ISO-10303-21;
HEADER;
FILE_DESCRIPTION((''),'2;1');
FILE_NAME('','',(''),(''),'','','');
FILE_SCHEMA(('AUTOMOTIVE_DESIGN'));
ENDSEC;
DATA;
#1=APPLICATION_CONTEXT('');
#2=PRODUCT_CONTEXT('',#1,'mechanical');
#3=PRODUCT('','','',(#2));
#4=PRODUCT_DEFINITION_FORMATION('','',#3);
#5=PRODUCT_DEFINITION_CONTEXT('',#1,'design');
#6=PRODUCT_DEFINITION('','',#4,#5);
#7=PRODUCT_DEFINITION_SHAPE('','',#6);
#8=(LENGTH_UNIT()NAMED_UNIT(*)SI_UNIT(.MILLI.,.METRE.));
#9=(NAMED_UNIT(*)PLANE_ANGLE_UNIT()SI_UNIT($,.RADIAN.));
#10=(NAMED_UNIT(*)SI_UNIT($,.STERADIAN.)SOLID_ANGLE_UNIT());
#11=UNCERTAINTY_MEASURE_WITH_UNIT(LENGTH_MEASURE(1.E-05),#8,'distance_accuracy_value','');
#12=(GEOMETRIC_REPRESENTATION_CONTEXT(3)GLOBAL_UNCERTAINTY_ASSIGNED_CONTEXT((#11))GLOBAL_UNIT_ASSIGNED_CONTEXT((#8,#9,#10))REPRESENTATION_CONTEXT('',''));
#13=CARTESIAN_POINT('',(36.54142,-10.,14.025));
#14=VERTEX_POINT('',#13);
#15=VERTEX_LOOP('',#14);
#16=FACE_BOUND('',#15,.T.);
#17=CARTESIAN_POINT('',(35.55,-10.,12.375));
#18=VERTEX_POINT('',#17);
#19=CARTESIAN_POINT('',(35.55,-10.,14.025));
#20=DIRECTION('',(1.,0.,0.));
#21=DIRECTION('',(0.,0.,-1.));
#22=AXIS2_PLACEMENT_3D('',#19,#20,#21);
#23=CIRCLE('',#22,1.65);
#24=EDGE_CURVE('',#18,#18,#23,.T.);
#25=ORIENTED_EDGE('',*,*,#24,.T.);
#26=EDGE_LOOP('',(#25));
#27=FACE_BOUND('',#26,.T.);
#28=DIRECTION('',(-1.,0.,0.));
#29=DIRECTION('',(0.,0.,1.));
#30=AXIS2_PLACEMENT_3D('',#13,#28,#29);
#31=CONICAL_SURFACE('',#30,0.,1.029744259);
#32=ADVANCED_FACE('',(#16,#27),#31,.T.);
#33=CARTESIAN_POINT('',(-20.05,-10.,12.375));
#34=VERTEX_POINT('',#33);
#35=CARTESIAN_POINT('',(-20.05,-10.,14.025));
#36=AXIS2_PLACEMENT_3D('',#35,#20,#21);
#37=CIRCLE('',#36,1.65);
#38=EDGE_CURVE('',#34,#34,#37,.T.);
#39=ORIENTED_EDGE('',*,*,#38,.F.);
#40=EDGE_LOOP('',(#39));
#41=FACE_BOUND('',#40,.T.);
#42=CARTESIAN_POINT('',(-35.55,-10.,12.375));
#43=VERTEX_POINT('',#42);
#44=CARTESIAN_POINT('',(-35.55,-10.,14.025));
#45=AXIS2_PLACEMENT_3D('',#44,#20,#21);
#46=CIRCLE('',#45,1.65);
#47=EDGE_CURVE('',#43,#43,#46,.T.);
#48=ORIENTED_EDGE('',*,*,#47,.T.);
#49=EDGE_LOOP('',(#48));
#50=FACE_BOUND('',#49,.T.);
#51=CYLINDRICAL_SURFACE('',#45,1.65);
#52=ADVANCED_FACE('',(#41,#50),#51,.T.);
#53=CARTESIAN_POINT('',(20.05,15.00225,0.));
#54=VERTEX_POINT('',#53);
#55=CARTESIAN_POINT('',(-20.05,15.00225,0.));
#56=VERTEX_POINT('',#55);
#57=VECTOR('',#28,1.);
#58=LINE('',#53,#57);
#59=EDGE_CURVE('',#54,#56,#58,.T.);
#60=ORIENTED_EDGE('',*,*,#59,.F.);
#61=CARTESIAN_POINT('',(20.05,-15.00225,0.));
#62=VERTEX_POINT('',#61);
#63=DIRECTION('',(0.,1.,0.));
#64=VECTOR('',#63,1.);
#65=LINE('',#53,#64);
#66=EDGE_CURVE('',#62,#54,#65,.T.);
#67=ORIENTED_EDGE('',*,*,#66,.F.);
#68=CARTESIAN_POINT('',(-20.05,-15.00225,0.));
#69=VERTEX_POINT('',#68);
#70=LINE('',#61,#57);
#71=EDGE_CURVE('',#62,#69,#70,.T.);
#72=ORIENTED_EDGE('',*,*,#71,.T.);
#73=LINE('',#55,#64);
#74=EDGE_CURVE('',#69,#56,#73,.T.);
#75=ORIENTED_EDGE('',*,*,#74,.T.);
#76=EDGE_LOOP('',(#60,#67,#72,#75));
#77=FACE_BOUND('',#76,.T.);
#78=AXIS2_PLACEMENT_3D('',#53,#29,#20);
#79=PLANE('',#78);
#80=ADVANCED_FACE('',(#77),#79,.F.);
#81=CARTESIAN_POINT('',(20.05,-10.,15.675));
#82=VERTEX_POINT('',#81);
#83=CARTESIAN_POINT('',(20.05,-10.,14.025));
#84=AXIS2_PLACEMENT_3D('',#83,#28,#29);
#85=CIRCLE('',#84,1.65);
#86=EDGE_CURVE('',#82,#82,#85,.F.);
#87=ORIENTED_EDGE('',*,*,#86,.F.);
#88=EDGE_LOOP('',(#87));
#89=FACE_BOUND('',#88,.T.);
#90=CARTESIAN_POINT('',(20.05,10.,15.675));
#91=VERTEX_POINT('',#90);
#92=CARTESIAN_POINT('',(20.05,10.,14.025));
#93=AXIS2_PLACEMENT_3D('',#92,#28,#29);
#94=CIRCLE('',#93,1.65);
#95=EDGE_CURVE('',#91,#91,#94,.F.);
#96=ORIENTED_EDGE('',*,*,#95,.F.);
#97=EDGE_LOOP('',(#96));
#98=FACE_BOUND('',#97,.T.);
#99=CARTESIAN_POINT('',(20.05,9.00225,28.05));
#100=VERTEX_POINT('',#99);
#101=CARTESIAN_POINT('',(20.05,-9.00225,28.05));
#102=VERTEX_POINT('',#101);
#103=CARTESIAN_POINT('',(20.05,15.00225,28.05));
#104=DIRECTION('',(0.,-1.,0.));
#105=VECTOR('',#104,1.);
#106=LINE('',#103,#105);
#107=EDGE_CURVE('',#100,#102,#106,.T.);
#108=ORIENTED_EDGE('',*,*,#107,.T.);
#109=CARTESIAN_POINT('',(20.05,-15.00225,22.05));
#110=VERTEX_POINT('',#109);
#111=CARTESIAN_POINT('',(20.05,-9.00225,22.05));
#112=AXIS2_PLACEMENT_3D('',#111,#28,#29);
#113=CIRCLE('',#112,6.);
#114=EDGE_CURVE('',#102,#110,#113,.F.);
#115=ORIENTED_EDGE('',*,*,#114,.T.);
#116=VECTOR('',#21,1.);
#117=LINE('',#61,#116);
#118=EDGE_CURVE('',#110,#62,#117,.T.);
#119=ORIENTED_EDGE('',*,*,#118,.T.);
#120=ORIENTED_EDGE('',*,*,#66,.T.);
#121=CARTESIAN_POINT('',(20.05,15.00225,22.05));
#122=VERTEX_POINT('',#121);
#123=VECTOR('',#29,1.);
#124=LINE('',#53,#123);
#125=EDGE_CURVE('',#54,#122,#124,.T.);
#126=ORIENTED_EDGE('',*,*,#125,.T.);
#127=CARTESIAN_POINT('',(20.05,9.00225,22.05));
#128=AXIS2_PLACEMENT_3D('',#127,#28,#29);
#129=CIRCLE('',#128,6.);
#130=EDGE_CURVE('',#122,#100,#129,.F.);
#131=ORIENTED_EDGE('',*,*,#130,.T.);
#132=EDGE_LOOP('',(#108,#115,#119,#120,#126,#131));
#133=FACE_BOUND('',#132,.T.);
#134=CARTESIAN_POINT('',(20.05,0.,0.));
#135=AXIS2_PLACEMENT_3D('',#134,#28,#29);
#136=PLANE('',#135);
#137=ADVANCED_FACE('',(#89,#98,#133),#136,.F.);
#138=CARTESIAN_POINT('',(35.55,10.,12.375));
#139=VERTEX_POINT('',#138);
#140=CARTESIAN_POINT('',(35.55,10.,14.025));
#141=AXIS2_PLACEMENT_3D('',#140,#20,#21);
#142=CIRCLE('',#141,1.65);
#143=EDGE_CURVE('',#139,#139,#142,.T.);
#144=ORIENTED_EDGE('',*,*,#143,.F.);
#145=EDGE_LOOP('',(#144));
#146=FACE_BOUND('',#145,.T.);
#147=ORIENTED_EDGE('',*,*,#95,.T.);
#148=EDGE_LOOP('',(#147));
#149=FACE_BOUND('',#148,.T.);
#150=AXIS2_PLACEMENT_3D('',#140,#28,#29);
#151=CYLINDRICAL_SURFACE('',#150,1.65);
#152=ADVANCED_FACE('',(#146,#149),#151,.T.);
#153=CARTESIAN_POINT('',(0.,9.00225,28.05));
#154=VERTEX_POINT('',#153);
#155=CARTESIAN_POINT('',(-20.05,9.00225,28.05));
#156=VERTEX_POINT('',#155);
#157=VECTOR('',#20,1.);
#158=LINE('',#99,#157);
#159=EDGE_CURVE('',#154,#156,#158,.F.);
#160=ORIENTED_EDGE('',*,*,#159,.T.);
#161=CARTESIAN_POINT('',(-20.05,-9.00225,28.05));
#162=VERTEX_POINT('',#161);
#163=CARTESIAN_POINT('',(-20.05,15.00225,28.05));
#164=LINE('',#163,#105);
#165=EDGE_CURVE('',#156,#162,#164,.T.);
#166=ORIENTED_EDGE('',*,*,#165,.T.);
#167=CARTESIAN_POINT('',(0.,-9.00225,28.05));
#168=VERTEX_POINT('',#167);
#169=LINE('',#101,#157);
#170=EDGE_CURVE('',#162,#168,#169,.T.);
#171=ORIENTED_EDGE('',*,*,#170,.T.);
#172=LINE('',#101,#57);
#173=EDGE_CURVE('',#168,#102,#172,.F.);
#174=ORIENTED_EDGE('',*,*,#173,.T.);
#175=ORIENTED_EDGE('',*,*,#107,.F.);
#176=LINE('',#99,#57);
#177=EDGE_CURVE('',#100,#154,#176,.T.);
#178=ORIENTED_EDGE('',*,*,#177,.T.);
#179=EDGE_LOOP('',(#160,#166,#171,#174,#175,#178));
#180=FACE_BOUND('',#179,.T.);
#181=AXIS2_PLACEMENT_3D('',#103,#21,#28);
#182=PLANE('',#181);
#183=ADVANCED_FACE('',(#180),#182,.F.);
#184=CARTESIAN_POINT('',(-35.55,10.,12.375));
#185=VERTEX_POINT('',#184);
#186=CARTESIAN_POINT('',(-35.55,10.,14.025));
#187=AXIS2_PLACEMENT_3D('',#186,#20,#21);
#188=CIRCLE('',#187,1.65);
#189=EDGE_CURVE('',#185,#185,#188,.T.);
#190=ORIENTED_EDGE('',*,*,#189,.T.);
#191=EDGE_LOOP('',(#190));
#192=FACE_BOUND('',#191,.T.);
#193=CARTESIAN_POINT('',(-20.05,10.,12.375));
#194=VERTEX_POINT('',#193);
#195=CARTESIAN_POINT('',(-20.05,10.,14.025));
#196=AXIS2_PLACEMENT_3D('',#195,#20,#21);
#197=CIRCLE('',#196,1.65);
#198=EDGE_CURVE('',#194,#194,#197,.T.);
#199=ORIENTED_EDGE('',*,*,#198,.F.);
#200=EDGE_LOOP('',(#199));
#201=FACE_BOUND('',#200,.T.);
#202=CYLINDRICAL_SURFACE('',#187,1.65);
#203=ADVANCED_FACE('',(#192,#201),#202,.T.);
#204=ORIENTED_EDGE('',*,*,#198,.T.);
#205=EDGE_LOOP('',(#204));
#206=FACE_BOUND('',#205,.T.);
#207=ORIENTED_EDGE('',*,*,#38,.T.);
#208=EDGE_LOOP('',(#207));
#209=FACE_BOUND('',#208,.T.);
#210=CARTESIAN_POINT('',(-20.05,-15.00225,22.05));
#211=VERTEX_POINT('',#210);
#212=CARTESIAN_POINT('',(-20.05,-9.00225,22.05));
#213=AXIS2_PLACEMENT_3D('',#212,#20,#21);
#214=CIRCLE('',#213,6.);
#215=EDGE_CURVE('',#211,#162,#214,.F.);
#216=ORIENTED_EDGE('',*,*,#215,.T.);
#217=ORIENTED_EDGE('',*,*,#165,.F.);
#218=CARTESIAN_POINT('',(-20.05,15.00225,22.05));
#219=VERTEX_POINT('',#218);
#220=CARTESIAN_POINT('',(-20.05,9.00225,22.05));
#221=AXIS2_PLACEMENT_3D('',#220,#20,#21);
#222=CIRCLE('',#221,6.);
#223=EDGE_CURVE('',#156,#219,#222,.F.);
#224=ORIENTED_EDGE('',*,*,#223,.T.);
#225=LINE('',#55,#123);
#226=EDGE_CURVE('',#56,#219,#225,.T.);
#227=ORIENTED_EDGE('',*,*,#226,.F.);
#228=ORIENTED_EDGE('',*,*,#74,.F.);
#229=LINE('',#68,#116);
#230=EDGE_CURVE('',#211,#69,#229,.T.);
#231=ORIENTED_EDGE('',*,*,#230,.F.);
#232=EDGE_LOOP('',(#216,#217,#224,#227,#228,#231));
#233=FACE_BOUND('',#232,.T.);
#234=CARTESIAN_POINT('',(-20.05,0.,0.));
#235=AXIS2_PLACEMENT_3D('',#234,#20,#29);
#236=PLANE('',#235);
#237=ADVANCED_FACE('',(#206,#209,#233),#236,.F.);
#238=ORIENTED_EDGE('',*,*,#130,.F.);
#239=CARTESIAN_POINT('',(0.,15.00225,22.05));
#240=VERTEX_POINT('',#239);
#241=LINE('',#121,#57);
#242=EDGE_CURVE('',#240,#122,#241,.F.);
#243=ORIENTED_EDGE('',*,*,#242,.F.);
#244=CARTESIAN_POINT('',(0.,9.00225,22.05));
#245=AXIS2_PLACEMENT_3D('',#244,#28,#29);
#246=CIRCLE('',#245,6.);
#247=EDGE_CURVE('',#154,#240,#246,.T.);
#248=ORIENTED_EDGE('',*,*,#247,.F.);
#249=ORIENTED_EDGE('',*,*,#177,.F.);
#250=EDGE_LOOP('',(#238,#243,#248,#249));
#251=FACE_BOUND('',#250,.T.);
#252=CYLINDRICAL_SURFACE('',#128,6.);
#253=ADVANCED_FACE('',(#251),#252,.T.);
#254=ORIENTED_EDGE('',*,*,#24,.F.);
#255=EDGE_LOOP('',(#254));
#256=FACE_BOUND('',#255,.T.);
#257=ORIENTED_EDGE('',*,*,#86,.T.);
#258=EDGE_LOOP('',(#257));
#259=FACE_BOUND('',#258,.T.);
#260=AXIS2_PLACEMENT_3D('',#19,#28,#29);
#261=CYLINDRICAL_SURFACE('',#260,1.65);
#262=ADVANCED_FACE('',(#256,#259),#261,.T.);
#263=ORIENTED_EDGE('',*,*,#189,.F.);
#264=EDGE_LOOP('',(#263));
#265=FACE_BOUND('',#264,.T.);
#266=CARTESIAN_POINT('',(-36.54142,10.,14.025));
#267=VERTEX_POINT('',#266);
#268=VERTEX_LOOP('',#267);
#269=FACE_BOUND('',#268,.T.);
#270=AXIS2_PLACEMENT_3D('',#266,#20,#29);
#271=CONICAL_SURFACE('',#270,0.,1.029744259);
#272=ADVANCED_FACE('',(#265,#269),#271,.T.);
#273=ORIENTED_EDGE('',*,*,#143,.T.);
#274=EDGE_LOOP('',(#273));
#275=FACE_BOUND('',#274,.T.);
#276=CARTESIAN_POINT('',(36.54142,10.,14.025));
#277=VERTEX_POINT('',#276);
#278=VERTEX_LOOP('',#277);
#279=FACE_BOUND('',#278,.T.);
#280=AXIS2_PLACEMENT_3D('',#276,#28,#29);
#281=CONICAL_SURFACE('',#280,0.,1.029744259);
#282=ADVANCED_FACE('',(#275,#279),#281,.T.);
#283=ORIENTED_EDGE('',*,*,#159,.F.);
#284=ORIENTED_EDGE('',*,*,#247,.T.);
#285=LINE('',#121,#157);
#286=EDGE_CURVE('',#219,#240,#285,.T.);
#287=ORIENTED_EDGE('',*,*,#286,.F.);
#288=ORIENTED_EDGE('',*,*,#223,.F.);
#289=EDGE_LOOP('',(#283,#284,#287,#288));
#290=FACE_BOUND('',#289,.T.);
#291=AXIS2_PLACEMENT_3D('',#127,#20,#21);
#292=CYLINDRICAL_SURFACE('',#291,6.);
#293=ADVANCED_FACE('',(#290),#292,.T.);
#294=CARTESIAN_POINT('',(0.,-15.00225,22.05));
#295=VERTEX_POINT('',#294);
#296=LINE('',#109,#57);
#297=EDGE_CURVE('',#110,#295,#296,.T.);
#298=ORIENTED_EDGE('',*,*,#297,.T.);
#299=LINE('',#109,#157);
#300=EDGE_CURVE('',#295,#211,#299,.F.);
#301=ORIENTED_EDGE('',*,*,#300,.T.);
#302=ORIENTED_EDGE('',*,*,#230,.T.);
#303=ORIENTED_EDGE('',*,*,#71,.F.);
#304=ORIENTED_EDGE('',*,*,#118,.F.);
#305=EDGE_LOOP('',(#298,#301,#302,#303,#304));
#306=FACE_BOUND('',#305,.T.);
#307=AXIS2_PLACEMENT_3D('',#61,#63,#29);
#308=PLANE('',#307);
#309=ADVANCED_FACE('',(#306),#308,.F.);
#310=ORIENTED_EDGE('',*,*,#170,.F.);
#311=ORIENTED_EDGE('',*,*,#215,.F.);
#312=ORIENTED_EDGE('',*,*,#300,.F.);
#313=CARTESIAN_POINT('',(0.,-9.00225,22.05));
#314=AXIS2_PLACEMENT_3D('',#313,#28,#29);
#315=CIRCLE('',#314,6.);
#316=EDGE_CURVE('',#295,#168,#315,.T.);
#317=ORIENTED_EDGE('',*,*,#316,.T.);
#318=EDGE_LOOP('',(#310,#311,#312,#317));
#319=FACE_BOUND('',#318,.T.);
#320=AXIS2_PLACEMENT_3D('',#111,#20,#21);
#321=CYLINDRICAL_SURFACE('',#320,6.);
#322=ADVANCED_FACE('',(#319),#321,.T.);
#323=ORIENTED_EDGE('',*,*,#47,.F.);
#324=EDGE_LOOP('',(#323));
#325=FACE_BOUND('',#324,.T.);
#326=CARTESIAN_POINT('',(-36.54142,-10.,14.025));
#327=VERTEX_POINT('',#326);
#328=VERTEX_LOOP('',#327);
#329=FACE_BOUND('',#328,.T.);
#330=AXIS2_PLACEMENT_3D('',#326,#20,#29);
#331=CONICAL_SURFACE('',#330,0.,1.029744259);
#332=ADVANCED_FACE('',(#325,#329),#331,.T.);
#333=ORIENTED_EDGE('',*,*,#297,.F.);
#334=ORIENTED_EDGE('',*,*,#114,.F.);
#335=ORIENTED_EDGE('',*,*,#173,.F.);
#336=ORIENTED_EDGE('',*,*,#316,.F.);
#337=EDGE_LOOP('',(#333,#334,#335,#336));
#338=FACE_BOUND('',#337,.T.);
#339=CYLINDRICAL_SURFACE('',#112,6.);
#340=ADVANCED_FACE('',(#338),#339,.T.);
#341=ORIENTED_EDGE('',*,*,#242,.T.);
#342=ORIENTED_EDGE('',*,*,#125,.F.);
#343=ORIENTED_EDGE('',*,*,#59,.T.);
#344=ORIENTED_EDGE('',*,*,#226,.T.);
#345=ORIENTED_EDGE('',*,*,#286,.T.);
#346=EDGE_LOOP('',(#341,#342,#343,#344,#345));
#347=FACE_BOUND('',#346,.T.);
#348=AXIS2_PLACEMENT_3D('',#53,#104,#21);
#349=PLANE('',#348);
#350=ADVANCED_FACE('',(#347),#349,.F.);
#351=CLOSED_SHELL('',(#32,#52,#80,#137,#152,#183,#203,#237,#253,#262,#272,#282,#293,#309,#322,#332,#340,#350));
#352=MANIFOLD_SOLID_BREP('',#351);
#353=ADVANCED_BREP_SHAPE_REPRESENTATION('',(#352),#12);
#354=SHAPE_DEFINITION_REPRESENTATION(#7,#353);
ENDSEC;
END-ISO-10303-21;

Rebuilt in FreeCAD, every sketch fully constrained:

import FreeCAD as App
import Part
import Sketcher
from FreeCAD import Vector
Q = App.Units.Quantity


def edges_at(feature, points):
    """Names of the edges that pass closest to the given points."""
    edges = feature.Shape.Edges
    near = lambda p: min(range(len(edges)), key=lambda i: edges[i].distToShape(Part.Vertex(*p))[0])
    return sorted({f"Edge{near(p) + 1}" for p in points})


def add_polygon(sketch, points):
    """Adds a closed chain of lines whose ends are joined by coincident constraints."""
    first, n = sketch.GeometryCount, len(points)
    for a, b in zip(points, points[1:] + points[:1]):
        sketch.addGeometry(Part.LineSegment(App.Vector(*a, 0), App.Vector(*b, 0)), False)
    for i in range(n):
        sketch.addConstraint(Sketcher.Constraint("Coincident", first + i, 2, first + (i + 1) % n, 1))

doc = App.newDocument("Part")
params = doc.addObject("Spreadsheet::Sheet", "Params")
for row, (alias, value) in enumerate([
    ("sketch1_height", "28.05 mm"),
    ("pad1_length", "20.05 mm"),
    ("fillet_radius", "6 mm"),
    ("sketch2_diameter", "3.3 mm"),
    ("pad2_length", "15.5 mm"),
    ("sketch3_height", "1.65 mm"),
    ("revolution_angle", "360 deg"),
    ("sketch4_height", "1.65 mm"),
    ("revolution2_angle", "360 deg"),
    ("fillet2_radius", "6 mm"),
], start=1):
    params.set(f"A{row}", alias)
    params.set(f"B{row}", "=" + value)
    params.setAlias(f"B{row}", alias)

body = doc.addObject("PartDesign::Body", "Body")

# Sketch on YZ plane
sketch1 = body.newObject("Sketcher::SketchObject", "Sketch")
sketch1.AttachmentSupport = (doc.getObject("YZ_Plane"), [""])
sketch1.MapMode = "FlatFace"
add_polygon(sketch1, [(15, 28), (-15, 28), (-15, 0), (15, 0)])  # lines 0-3
sketch1.addConstraint([
    Sketcher.Constraint("Horizontal", 0),
    Sketcher.Constraint("Vertical", 1),
    Sketcher.Constraint("Horizontal", 2),
    Sketcher.Constraint("Vertical", 3),
    Sketcher.Constraint("Symmetric", 1, 2, 2, 2, -1, 1),
    Sketcher.Constraint("DistanceY", 1, 2, 1, 1, 28.05),
    Sketcher.Constraint("DistanceX", 0, 2, 0, 1, 30.0045),
])
sketch1.setExpression("Constraints[9]", "Params.sketch1_height")
pad1 = body.newObject("PartDesign::Pad", "Pad")
pad1.Profile = sketch1
pad1.setExpression("Length", "Params.pad1_length")
doc.recompute()

fillet = body.newObject("PartDesign::Fillet", "Fillet")
fillet.Base = (pad1, edges_at(pad1, [(10.025, -15.002, 28.05), (10.025, 15.002, 28.05)]))
fillet.setExpression("Radius", "Params.fillet_radius")

# Sketch on YZ plane
sketch2 = body.newObject("Sketcher::SketchObject", "Sketch001")
sketch2.AttachmentSupport = (doc.getObject("YZ_Plane"), [""])
sketch2.MapMode = "FlatFace"
sketch2.AttachmentOffset = App.Placement(Vector(0, 0, 20.05), App.Rotation())
sketch2.addGeometry([
    Part.Circle(Vector(10, 14, 0), Vector(0, 0, 1), 1.6),
    Part.Circle(Vector(-10, 14, 0), Vector(0, 0, 1), 1.6),
], False)
sketch2.addConstraint([
    Sketcher.Constraint("Equal", 0, 1),
    Sketcher.Constraint("Symmetric", 0, 3, 1, 3, -2),
    Sketcher.Constraint("Diameter", 0, 3.3),
    Sketcher.Constraint("DistanceX", -1, 1, 0, 3, 10.0),
    Sketcher.Constraint("DistanceY", -1, 1, 0, 3, 14.025),
])
sketch2.setExpression("Constraints[2]", "Params.sketch2_diameter")
pad2 = body.newObject("PartDesign::Pad", "Pad001")
pad2.Profile = sketch2
pad2.setExpression("Length", "Params.pad2_length")

# Sketch on XY plane
sketch3 = body.newObject("Sketcher::SketchObject", "Sketch002")
sketch3.AttachmentSupport = (doc.getObject("XY_Plane"), [""])
sketch3.MapMode = "FlatFace"
sketch3.AttachmentOffset = App.Placement(Vector(0, 0, 14.025), App.Rotation())
add_polygon(sketch3, [(35.5, 10), (36.5, 10), (35.5, 11.7)])  # lines 0-2
sketch3.addGeometry(Part.LineSegment(Vector(36.5, 10, 0), Vector(35.5, 10, 0)), True)  # axis
sketch3.addConstraint([
    Sketcher.Constraint("Horizontal", 0),
    Sketcher.Constraint("Vertical", 2),
    Sketcher.Constraint("Horizontal", 3),
    Sketcher.Constraint("Coincident", 3, 1, 0, 2),
    Sketcher.Constraint("Vertical", 1, 2, 3, 2),
    Sketcher.Constraint("Angle", 1, Q("121 deg")),
    Sketcher.Constraint("DistanceY", -1, 1, 0, 2, 10.0),
    Sketcher.Constraint("DistanceY", 2, 2, 2, 1, 1.65),
    Sketcher.Constraint("DistanceX", -1, 1, 1, 2, 35.55),
])
sketch3.setExpression("Constraints[10]", "Params.sketch3_height")
revolution = body.newObject("PartDesign::Revolution", "Revolution")
revolution.Profile = sketch3
revolution.ReferenceAxis = (sketch3, ["Axis0"])
revolution.setExpression("Angle", "Params.revolution_angle")

# Sketch on XY plane
sketch4 = body.newObject("Sketcher::SketchObject", "Sketch003")
sketch4.AttachmentSupport = (doc.getObject("XY_Plane"), [""])
sketch4.MapMode = "FlatFace"
sketch4.AttachmentOffset = App.Placement(Vector(0, 0, 14.025), App.Rotation())
add_polygon(sketch4, [(35.5, -10), (36.5, -10), (35.5, -8.3)])  # lines 0-2
sketch4.addGeometry(Part.LineSegment(Vector(36.5, -10, 0), Vector(35.5, -10, 0)), True)  # axis
sketch4.addConstraint([
    Sketcher.Constraint("Horizontal", 0),
    Sketcher.Constraint("Vertical", 2),
    Sketcher.Constraint("Horizontal", 3),
    Sketcher.Constraint("Coincident", 3, 1, 0, 2),
    Sketcher.Constraint("Vertical", 1, 2, 3, 2),
    Sketcher.Constraint("Angle", 1, Q("121 deg")),
    Sketcher.Constraint("DistanceY", 0, 2, -1, 1, 10.0),
    Sketcher.Constraint("DistanceY", 2, 2, 2, 1, 1.65),
    Sketcher.Constraint("DistanceX", -1, 1, 1, 2, 35.55),
])
sketch4.setExpression("Constraints[10]", "Params.sketch4_height")
revolution2 = body.newObject("PartDesign::Revolution", "Revolution001")
revolution2.Profile = sketch4
revolution2.ReferenceAxis = (sketch4, ["Axis0"])
revolution2.setExpression("Angle", "Params.revolution2_angle")
doc.recompute()

mirrored = body.newObject("PartDesign::Mirrored", "Mirrored")
mirrored.Originals = [pad1, pad2, revolution, revolution2]
mirrored.MirrorPlane = (doc.getObject("YZ_Plane"), [""])
body.Tip = mirrored
doc.recompute()

fillet2 = body.newObject("PartDesign::Fillet", "Fillet001")
fillet2.Base = (mirrored, edges_at(mirrored, [(-10.025, -15.002, 28.05), (-10.025, 15.002, 28.05)]))
fillet2.setExpression("Radius", "Params.fillet2_radius")

doc.recompute()
